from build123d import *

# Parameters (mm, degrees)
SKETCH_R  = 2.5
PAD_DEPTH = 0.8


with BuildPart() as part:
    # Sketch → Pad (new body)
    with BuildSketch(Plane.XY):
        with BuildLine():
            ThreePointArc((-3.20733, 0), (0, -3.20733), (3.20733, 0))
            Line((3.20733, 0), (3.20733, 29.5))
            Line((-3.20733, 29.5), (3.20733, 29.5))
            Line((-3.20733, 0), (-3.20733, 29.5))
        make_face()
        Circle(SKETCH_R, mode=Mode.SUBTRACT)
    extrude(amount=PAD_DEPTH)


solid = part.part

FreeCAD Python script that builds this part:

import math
import FreeCAD as App
import Part
import Sketcher

doc = App.newDocument("Part")
params = doc.addObject("Spreadsheet::Sheet", "Params")
for row, (alias, value) in enumerate([
    ("sketch1_diameter", "5 mm"),
    ("sketch1_height", "29.5 mm"),
    ("pad1_length", "0.8 mm"),
], start=1):
    params.set(f"A{row}", alias)
    params.set(f"B{row}", "=" + value)
    params.setAlias(f"B{row}", alias)

body = doc.addObject("PartDesign::Body", "Body")

# Sketch on XY plane
sketch1 = doc.addObject("Sketcher::SketchObject", "Sketch")
body.addObject(sketch1)
sketch1.AttachmentSupport = (doc.XY_Plane, [""])
sketch1.MapMode = "FlatFace"
sketch1.addGeometry([
    Part.ArcOfCircle(Part.Circle(App.Vector(0, 0, 0), App.Vector(0, 0, 1), 3.20733), math.radians(180), math.radians(360)),  # 0
    Part.LineSegment(App.Vector(3.20733, 0, 0), App.Vector(3.20733, 29.5, 0)),  # 1
    Part.LineSegment(App.Vector(3.20733, 29.5, 0), App.Vector(-3.20733, 29.5, 0)),  # 2
    Part.LineSegment(App.Vector(-3.20733, 29.5, 0), App.Vector(-3.20733, 0, 0)),  # 3
    Part.Circle(App.Vector(0, 0, 0), App.Vector(0, 0, 1), 2.5),  # 4
], False)
sketch1.addConstraint([
    Sketcher.Constraint("Tangent", 0, 2, 1, 1),
    Sketcher.Constraint("Coincident", 1, 2, 2, 1),
    Sketcher.Constraint("Coincident", 2, 2, 3, 1),
    Sketcher.Constraint("Tangent", 3, 2, 0, 1),
    Sketcher.Constraint("Vertical", 1),
    Sketcher.Constraint("Horizontal", 2),
    Sketcher.Constraint("Vertical", 3),
    Sketcher.Constraint("Coincident", 0, 3, -1, 1),
    Sketcher.Constraint("Coincident", 4, 3, -1, 1),
    Sketcher.Constraint("Diameter", 4, 5.0),
    Sketcher.Constraint("DistanceY", 1, 1, 1, 2, 29.5),
    Sketcher.Constraint("Radius", 0, 3.20733),
])
sketch1.setExpression("Constraints[9]", "Params.sketch1_diameter")
sketch1.setExpression("Constraints[10]", "Params.sketch1_height")
pad1 = doc.addObject("PartDesign::Pad", "Pad")
body.addObject(pad1)
pad1.Profile = sketch1
pad1.setExpression("Length", "Params.pad1_length")

doc.recompute()
